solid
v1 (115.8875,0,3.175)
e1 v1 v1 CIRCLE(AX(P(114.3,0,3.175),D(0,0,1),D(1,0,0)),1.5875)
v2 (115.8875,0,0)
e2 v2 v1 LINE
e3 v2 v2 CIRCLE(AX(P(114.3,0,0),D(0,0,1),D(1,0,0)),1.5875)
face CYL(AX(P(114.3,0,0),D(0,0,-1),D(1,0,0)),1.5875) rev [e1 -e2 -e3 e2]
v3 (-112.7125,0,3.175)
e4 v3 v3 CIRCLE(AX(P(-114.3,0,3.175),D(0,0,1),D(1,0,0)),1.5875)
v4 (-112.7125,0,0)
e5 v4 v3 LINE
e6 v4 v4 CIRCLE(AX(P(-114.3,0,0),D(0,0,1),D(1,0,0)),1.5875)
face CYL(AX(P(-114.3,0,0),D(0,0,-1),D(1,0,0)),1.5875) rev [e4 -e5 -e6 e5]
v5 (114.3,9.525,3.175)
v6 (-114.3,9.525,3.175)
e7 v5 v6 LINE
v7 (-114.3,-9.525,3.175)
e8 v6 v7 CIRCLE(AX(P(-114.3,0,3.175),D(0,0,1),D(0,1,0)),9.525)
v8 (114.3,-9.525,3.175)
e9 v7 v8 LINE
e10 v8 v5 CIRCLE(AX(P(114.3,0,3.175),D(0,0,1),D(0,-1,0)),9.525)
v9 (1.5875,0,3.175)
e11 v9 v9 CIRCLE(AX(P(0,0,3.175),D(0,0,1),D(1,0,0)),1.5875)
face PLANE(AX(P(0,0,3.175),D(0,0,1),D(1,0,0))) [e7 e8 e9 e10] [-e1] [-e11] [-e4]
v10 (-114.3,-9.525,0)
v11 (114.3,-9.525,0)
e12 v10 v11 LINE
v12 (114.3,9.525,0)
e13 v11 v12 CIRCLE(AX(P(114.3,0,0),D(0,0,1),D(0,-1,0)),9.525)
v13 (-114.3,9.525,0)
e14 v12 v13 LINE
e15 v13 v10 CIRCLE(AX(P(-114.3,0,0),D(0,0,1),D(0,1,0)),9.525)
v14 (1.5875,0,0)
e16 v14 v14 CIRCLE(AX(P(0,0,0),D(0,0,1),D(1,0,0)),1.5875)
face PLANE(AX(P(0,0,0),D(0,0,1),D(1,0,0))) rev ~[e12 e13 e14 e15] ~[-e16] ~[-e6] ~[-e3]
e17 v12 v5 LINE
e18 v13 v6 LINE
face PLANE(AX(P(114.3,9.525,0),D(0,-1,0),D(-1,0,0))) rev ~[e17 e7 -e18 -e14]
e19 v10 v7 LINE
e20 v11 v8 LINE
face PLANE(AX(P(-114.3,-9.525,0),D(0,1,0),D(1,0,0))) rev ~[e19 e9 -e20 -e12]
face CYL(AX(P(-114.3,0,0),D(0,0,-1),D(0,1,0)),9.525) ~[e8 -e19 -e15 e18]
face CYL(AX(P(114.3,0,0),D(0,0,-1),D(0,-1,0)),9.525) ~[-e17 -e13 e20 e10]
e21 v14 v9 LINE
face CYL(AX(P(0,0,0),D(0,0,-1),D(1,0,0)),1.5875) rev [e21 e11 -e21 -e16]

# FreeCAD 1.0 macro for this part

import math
import FreeCAD as App
import Part
import Sketcher
from FreeCAD import Vector
Q = App.Units.Quantity

doc = App.newDocument("Part")
body = doc.addObject("PartDesign::Body", "Body")

sketch1 = doc.addObject("Sketcher::SketchObject", "Sketch")
body.addObject(sketch1)
sketch1.AttachmentSupport = (doc.XY_Plane, [""])
sketch1.MapMode = "FlatFace"
sketch1.addGeometry([
    Part.ArcOfCircle(Part.Circle(Vector(114.3, 0, 0), Vector(0, 0, 1), 9.5), math.radians(-90), math.radians(90)),
    Part.LineSegment(Vector(114.3, 9.5, 0), Vector(-114.3, 9.5, 0)),
    Part.ArcOfCircle(Part.Circle(Vector(-114.3, 0, 0), Vector(0, 0, 1), 9.5), math.radians(90), math.radians(270)),
    Part.LineSegment(Vector(-114.3, -9.5, 0), Vector(114.3, -9.5, 0)),
    Part.Circle(Vector(-114.3, 0, 0), Vector(0, 0, 1), 1.6),
    Part.Circle(Vector(0, 0, 0), Vector(0, 0, 1), 1.6),
    Part.Circle(Vector(114.3, 0, 0), Vector(0, 0, 1), 1.6),
], False)
sketch1.addConstraint([
    Sketcher.Constraint("Tangent", 0, 2, 1, 1),
    Sketcher.Constraint("Tangent", 1, 2, 2, 1),
    Sketcher.Constraint("Tangent", 2, 2, 3, 1),
    Sketcher.Constraint("Tangent", 3, 2, 0, 1),
    Sketcher.Constraint("Horizontal", 1),
    Sketcher.Constraint("Horizontal", 3),
    Sketcher.Constraint("Coincident", 5, 3, -1, 1),
    Sketcher.Constraint("Coincident", 4, 3, 2, 3),
    Sketcher.Constraint("Coincident", 6, 3, 0, 3),
    Sketcher.Constraint("Equal", 4, 5),
    Sketcher.Constraint("Equal", 5, 6),
    Sketcher.Constraint("Symmetric", 0, 3, 2, 3, -1, 1),
    Sketcher.Constraint("DistanceX", 1, 2, 1, 1, Q("9 in")),
    Sketcher.Constraint("Diameter", 4, Q("0.125 in")),
    Sketcher.Constraint("Radius", 0, Q("0.375 in")),
])
pad1 = doc.addObject("PartDesign::Pad", "Pad")
body.addObject(pad1)
pad1.Profile = sketch1
pad1.Length = Q("0.125 in")

doc.recompute()
